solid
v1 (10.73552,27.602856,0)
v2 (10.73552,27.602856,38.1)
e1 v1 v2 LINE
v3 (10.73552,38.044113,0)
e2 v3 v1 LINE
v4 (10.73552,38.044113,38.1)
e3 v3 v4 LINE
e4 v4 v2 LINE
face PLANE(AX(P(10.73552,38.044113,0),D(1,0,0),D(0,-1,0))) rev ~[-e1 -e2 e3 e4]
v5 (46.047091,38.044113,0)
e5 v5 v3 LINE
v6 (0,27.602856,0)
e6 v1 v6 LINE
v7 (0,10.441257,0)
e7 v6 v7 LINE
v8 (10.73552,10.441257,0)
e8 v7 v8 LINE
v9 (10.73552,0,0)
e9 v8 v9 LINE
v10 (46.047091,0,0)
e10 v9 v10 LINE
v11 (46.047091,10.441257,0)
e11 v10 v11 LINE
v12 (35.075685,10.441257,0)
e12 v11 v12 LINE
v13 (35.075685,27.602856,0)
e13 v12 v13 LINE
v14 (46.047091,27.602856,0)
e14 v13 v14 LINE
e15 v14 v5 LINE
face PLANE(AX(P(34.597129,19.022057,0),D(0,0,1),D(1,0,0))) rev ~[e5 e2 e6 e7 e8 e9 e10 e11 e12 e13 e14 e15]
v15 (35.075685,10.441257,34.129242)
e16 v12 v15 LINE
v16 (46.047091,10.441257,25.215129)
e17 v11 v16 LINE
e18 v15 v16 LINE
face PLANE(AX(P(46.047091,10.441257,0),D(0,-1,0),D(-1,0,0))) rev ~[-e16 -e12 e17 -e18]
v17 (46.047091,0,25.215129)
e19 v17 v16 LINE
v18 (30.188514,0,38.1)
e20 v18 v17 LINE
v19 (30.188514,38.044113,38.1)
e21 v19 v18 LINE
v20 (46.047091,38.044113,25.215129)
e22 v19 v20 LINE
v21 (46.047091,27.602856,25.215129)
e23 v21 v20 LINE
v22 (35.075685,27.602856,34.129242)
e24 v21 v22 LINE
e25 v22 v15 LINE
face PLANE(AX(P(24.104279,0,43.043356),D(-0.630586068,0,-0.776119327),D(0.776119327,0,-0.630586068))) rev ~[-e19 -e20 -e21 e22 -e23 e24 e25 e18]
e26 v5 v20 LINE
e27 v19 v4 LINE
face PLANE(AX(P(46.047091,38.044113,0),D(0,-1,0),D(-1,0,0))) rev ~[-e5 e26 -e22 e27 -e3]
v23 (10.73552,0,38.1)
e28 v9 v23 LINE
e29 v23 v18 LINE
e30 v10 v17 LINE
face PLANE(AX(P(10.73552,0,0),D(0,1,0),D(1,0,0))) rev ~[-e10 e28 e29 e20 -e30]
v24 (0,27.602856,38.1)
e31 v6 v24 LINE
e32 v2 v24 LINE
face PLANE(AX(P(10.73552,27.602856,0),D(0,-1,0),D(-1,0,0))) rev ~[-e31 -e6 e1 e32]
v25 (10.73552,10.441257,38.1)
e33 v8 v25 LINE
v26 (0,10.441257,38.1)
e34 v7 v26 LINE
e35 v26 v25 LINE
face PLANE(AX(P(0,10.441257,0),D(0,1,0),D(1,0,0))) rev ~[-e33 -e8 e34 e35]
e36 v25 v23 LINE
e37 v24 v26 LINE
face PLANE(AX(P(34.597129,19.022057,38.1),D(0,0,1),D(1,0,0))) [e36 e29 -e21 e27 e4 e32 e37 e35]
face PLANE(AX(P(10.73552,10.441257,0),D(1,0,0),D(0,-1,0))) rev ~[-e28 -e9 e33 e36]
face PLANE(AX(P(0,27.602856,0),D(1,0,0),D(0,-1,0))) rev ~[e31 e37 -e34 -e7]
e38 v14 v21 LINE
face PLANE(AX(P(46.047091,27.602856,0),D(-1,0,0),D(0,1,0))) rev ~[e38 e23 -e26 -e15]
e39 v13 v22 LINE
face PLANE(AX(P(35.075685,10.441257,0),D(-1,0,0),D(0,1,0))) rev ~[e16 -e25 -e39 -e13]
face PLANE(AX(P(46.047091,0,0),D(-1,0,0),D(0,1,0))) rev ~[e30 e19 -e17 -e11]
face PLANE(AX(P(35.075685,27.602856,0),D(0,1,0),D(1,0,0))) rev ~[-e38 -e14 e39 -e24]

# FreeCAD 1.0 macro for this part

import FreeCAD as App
import Part
import Sketcher

V = App.Vector
Q = App.Units.Quantity

doc = App.newDocument("Part")
body = doc.addObject("PartDesign::Body", "Body")

# Sketch on XY plane
sketch1 = body.newObject("Sketcher::SketchObject", "Sketch")
sketch1.AttachmentSupport = (doc.getObject("XY_Plane"), [""])
sketch1.MapMode = "FlatFace"
sketch1.addGeometry([
    Part.LineSegment(V(46, 0, 0), V(46, 10, 0)),  # 0
    Part.LineSegment(V(46, 10, 0), V(35, 10, 0)),  # 1
    Part.LineSegment(V(35, 10, 0), V(35, 28, 0)),  # 2
    Part.LineSegment(V(35, 28, 0), V(46, 28, 0)),  # 3
    Part.LineSegment(V(46, 28, 0), V(46, 38, 0)),  # 4
    Part.LineSegment(V(46, 38, 0), V(11, 38, 0)),  # 5
    Part.LineSegment(V(11, 38, 0), V(11, 28, 0)),  # 6
    Part.LineSegment(V(11, 28, 0), V(0, 28, 0)),  # 7
    Part.LineSegment(V(0, 28, 0), V(0, 10, 0)),  # 8
    Part.LineSegment(V(0, 10, 0), V(11, 10, 0)),  # 9
    Part.LineSegment(V(11, 10, 0), V(11, 0, 0)),  # 10
    Part.LineSegment(V(11, 0, 0), V(46, 0, 0)),  # 11
], False)
sketch1.addConstraint([
    Sketcher.Constraint("Coincident", 0, 2, 1, 1),
    Sketcher.Constraint("Coincident", 1, 2, 2, 1),
    Sketcher.Constraint("Coincident", 2, 2, 3, 1),
    Sketcher.Constraint("Coincident", 3, 2, 4, 1),
    Sketcher.Constraint("Coincident", 4, 2, 5, 1),
    Sketcher.Constraint("Coincident", 5, 2, 6, 1),
    Sketcher.Constraint("Coincident", 6, 2, 7, 1),
    Sketcher.Constraint("Coincident", 7, 2, 8, 1),
    Sketcher.Constraint("Coincident", 8, 2, 9, 1),
    Sketcher.Constraint("Coincident", 9, 2, 10, 1),
    Sketcher.Constraint("Coincident", 10, 2, 11, 1),
    Sketcher.Constraint("Coincident", 11, 2, 0, 1),
    Sketcher.Constraint("Vertical", 0),
    Sketcher.Constraint("Horizontal", 1),
    Sketcher.Constraint("Vertical", 2),
    Sketcher.Constraint("Horizontal", 3),
    Sketcher.Constraint("Vertical", 4),
    Sketcher.Constraint("Horizontal", 5),
    Sketcher.Constraint("Vertical", 6),
    Sketcher.Constraint("Horizontal", 7),
    Sketcher.Constraint("Vertical", 8),
    Sketcher.Constraint("Horizontal", 9),
    Sketcher.Constraint("Vertical", 10),
    Sketcher.Constraint("Horizontal", 11),
    Sketcher.Constraint("PointOnObject", 7, 2, -2),
    Sketcher.Constraint("PointOnObject", 10, 2, -1),
    Sketcher.Constraint("Horizontal", 3, 2, 6, 2),
    Sketcher.Constraint("Horizontal", 1, 2, 8, 2),
    Sketcher.Constraint("Vertical", 0, 2, 3, 2),
    Sketcher.Constraint("Vertical", 6, 2, 9, 2),
    Sketcher.Constraint("Equal", 0, 4),
    Sketcher.Constraint("DistanceY", 2, 1, 2, 2, 17.161599),
    Sketcher.Constraint("DistanceX", 5, 2, 5, 1, 35.311571),
    Sketcher.Constraint("DistanceX", 7, 2, 7, 1, 10.73552),
    Sketcher.Constraint("DistanceX", 1, 2, 1, 1, 10.971406),
    Sketcher.Constraint("DistanceY", 0, 1, 0, 2, 10.441257),
])
pad1 = body.newObject("PartDesign::Pad", "Pad")
pad1.Profile = sketch1
pad1.Length = Q("1.5 in")

# Sketch on XZ plane
sketch2 = body.newObject("Sketcher::SketchObject", "Sketch001")
sketch2.AttachmentSupport = (doc.getObject("XZ_Plane"), [""])
sketch2.MapMode = "FlatFace"
sketch2.addGeometry([
    Part.LineSegment(V(24, 43, 0), V(46, 25, 0)),
    Part.LineSegment(V(46, 25, 0), V(46, 43, 0)),
    Part.LineSegment(V(46, 43, 0), V(24, 43, 0)),
], False)
sketch2.addConstraint([
    Sketcher.Constraint("Coincident", 0, 2, 1, 1),
    Sketcher.Constraint("Coincident", 1, 2, 2, 1),
    Sketcher.Constraint("Coincident", 2, 2, 0, 1),
    Sketcher.Constraint("Vertical", 1),
    Sketcher.Constraint("Horizontal", 2),
    Sketcher.Constraint("DistanceX", 2, 2, 2, 1, 21.942812),
    Sketcher.Constraint("DistanceY", 1, 1, 1, 2, 17.828227),
    Sketcher.Constraint("DistanceX", -1, 1, 0, 2, 46.047091),
    Sketcher.Constraint("DistanceY", -1, 1, 0, 2, 25.215129),
])
pocket1 = body.newObject("PartDesign::Pocket", "Pocket")
pocket1.Profile = sketch2
pocket1.Length = Q("2 in")

doc.recompute()
